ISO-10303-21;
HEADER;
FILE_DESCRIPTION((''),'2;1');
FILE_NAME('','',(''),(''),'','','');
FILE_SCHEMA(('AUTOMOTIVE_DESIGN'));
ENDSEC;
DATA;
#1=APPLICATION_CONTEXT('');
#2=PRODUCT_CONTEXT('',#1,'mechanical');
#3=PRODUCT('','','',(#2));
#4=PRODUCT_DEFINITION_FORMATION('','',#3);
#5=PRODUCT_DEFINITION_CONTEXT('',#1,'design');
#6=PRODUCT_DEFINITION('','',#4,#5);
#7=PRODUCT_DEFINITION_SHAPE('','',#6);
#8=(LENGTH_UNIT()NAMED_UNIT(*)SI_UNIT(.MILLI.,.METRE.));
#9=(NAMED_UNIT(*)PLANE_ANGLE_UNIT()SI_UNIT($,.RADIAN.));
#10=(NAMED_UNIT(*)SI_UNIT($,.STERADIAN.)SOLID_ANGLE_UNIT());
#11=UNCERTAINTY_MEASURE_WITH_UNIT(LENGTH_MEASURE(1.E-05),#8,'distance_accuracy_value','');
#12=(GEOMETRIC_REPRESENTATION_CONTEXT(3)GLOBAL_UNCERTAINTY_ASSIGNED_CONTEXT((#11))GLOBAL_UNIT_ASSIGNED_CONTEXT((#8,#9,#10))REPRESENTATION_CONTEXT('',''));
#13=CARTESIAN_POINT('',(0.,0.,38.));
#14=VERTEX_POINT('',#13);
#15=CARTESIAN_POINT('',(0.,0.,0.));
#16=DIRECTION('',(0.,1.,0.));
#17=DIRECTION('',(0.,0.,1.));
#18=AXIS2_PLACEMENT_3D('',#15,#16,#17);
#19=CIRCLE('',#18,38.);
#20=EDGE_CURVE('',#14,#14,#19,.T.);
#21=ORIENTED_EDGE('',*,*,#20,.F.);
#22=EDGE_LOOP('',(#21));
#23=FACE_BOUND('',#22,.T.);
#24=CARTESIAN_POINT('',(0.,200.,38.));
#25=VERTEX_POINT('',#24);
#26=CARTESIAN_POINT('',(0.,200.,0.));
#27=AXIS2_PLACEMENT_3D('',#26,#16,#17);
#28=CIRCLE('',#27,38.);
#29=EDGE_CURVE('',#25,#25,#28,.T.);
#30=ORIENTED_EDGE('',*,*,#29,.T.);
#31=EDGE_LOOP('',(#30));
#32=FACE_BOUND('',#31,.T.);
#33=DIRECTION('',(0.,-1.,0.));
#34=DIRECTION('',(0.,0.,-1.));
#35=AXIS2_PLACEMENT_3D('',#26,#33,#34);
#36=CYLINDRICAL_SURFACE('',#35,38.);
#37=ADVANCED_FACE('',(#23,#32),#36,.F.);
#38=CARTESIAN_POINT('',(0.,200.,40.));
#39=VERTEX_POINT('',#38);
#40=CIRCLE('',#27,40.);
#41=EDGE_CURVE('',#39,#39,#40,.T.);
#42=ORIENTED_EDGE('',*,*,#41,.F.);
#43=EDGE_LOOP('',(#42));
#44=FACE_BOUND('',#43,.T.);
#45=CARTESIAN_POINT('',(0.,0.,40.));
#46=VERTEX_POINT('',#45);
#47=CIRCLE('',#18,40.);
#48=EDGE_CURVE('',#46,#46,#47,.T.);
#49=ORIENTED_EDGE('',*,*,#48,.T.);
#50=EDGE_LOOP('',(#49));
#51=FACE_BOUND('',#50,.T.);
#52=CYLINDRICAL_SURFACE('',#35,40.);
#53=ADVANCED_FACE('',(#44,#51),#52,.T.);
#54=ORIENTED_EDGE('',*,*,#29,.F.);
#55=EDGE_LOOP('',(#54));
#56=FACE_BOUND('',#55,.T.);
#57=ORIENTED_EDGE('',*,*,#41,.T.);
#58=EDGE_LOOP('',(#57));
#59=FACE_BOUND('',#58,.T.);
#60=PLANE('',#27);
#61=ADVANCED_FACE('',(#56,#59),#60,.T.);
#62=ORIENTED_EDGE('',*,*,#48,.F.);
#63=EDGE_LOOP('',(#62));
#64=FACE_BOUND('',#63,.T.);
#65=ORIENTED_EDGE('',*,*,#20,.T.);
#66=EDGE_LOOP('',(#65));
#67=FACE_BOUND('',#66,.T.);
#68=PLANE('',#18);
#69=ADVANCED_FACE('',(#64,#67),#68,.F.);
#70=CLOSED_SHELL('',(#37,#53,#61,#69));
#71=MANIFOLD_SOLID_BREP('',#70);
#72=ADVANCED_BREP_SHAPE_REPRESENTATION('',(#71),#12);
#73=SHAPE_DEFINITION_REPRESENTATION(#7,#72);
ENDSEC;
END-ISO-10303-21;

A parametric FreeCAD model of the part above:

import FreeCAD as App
import Part
import Sketcher

V = App.Vector
Q = App.Units.Quantity

doc = App.newDocument("Part")
params = doc.addObject("Spreadsheet::Sheet", "Params")
for row, (alias, value) in enumerate([
    ("sketch1_diameter", "80 mm"),
    ("sketch1_diameter2", "76 mm"),
    ("pad1_length", "200 mm"),
], start=1):
    params.set(f"A{row}", alias)
    params.set(f"B{row}", "=" + value)
    params.setAlias(f"B{row}", alias)

body = doc.addObject("PartDesign::Body", "Body")

# Sketch on XZ plane
sketch1 = body.newObject("Sketcher::SketchObject", "Sketch")
sketch1.AttachmentSupport = (doc.getObject("XZ_Plane"), [""])
sketch1.MapMode = "FlatFace"
sketch1.addGeometry([
    Part.Circle(V(0, 0, 0), V(0, 0, 1), 40),
    Part.Circle(V(0, 0, 0), V(0, 0, 1), 38),
], False)
sketch1.addConstraint([
    Sketcher.Constraint("Coincident", 0, 3, -1, 1),
    Sketcher.Constraint("Coincident", 1, 3, -1, 1),
    Sketcher.Constraint("Diameter", 0, Q("80 mm")),
    Sketcher.Constraint("Diameter", 1, Q("76 mm")),
])
sketch1.setExpression("Constraints[2]", "Params.sketch1_diameter")
sketch1.setExpression("Constraints[3]", "Params.sketch1_diameter2")
pad1 = body.newObject("PartDesign::Pad", "Pad")
pad1.Profile = sketch1
pad1.setExpression("Length", "Params.pad1_length")
pad1.Reversed = True

doc.recompute()
